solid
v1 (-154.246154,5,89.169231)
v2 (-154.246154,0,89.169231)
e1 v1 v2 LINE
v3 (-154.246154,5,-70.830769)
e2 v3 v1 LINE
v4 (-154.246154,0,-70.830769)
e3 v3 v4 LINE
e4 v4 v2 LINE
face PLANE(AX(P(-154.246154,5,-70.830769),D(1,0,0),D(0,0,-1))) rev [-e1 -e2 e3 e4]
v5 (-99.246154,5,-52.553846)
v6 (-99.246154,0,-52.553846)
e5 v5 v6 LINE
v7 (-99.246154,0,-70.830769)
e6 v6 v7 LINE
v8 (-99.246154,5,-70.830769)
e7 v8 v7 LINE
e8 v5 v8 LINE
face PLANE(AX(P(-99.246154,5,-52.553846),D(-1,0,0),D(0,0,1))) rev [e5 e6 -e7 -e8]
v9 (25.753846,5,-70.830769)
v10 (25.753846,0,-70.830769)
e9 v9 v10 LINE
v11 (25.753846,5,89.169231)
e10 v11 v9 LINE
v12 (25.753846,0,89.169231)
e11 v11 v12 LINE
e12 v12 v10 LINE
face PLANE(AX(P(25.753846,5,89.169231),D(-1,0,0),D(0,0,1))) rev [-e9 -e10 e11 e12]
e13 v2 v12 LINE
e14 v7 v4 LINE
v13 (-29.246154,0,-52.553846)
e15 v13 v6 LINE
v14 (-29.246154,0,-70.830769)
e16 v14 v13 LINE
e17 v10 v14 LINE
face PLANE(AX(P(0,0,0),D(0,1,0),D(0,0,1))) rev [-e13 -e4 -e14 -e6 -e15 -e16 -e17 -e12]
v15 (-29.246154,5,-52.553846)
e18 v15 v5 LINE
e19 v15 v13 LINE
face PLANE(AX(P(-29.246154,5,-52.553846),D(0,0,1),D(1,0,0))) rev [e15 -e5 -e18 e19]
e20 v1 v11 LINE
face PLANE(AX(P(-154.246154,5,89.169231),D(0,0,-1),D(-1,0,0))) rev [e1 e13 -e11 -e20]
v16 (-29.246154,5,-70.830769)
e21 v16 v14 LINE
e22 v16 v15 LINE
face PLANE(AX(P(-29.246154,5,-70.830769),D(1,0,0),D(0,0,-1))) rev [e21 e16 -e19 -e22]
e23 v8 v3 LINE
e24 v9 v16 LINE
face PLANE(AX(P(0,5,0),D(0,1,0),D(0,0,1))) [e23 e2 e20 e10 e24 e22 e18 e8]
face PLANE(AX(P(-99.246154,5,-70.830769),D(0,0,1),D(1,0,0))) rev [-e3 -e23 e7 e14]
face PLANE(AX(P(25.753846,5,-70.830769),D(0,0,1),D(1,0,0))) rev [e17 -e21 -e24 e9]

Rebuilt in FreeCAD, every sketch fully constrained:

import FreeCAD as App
import Part
import Sketcher
Q = App.Units.Quantity

doc = App.newDocument("Part")
body = doc.addObject("PartDesign::Body", "Body")

# Sketch on XZ plane
sketch1 = body.newObject("Sketcher::SketchObject", "Sketch")
sketch1.AttachmentSupport = (doc.getObject("XZ_Plane"), [""])
sketch1.MapMode = "FlatFace"
sketch1.addGeometry(Part.LineSegment(App.Vector(-154.246154, -70.830769, 0), App.Vector(-154.246154, 89.169231, 0)), False)
sketch1.addGeometry(Part.LineSegment(App.Vector(-154.246154, 89.169231, 0), App.Vector(25.753846, 89.169231, 0)), False)
sketch1.addGeometry(Part.LineSegment(App.Vector(25.753846, 89.169231, 0), App.Vector(25.753846, -70.830769, 0)), False)
sketch1.addGeometry(Part.LineSegment(App.Vector(25.753846, -70.830769, 0), App.Vector(-29.246154, -70.830769, 0)), False)
sketch1.addGeometry(Part.LineSegment(App.Vector(-29.246154, -70.830769, 0), App.Vector(-29.246154, -52.553846, 0)), False)
sketch1.addGeometry(Part.LineSegment(App.Vector(-29.246154, -52.553846, 0), App.Vector(-99.246154, -52.553846, 0)), False)
sketch1.addGeometry(Part.LineSegment(App.Vector(-99.246154, -52.553846, 0), App.Vector(-99.246154, -70.830769, 0)), False)
sketch1.addGeometry(Part.LineSegment(App.Vector(-99.246154, -70.830769, 0), App.Vector(-154.246154, -70.830769, 0)), False)
sketch1.addConstraint(Sketcher.Constraint("Coincident", 0, 2, 1, 1))
sketch1.addConstraint(Sketcher.Constraint("Coincident", 1, 2, 2, 1))
sketch1.addConstraint(Sketcher.Constraint("Coincident", 2, 2, 3, 1))
sketch1.addConstraint(Sketcher.Constraint("Coincident", 3, 2, 4, 1))
sketch1.addConstraint(Sketcher.Constraint("Coincident", 4, 2, 5, 1))
sketch1.addConstraint(Sketcher.Constraint("Coincident", 5, 2, 6, 1))
sketch1.addConstraint(Sketcher.Constraint("Coincident", 6, 2, 7, 1))
sketch1.addConstraint(Sketcher.Constraint("Coincident", 7, 2, 0, 1))
sketch1.addConstraint(Sketcher.Constraint("Vertical", 0))
sketch1.addConstraint(Sketcher.Constraint("Horizontal", 1))
sketch1.addConstraint(Sketcher.Constraint("Vertical", 2))
sketch1.addConstraint(Sketcher.Constraint("Horizontal", 3))
sketch1.addConstraint(Sketcher.Constraint("Vertical", 4))
sketch1.addConstraint(Sketcher.Constraint("Horizontal", 5))
sketch1.addConstraint(Sketcher.Constraint("Vertical", 6))
sketch1.addConstraint(Sketcher.Constraint("Horizontal", 7))
sketch1.addConstraint(Sketcher.Constraint("Horizontal", 3, 2, 6, 2))
sketch1.addConstraint(Sketcher.Constraint("Equal", 3, 7))
sketch1.addConstraint(Sketcher.Constraint("DistanceX", 1, 1, 1, 2, Q("180 mm")))
sketch1.addConstraint(Sketcher.Constraint("DistanceX", 3, 2, 3, 1, Q("55 mm")))
sketch1.addConstraint(Sketcher.Constraint("DistanceY", 0, 1, 0, 2, Q("160 mm")))
sketch1.addConstraint(Sketcher.Constraint("DistanceY", 4, 1, 4, 2, Q("18.276923 mm")))
sketch1.addConstraint(Sketcher.Constraint("DistanceY", -1, 1, 0, 2, Q("89.169231 mm")))
sketch1.addConstraint(Sketcher.Constraint("DistanceX", 0, 2, -1, 1, Q("154.246154 mm")))
pad1 = body.newObject("PartDesign::Pad", "Pad")
pad1.Profile = sketch1
pad1.Length = 5
pad1.Reversed = True

doc.recompute()
